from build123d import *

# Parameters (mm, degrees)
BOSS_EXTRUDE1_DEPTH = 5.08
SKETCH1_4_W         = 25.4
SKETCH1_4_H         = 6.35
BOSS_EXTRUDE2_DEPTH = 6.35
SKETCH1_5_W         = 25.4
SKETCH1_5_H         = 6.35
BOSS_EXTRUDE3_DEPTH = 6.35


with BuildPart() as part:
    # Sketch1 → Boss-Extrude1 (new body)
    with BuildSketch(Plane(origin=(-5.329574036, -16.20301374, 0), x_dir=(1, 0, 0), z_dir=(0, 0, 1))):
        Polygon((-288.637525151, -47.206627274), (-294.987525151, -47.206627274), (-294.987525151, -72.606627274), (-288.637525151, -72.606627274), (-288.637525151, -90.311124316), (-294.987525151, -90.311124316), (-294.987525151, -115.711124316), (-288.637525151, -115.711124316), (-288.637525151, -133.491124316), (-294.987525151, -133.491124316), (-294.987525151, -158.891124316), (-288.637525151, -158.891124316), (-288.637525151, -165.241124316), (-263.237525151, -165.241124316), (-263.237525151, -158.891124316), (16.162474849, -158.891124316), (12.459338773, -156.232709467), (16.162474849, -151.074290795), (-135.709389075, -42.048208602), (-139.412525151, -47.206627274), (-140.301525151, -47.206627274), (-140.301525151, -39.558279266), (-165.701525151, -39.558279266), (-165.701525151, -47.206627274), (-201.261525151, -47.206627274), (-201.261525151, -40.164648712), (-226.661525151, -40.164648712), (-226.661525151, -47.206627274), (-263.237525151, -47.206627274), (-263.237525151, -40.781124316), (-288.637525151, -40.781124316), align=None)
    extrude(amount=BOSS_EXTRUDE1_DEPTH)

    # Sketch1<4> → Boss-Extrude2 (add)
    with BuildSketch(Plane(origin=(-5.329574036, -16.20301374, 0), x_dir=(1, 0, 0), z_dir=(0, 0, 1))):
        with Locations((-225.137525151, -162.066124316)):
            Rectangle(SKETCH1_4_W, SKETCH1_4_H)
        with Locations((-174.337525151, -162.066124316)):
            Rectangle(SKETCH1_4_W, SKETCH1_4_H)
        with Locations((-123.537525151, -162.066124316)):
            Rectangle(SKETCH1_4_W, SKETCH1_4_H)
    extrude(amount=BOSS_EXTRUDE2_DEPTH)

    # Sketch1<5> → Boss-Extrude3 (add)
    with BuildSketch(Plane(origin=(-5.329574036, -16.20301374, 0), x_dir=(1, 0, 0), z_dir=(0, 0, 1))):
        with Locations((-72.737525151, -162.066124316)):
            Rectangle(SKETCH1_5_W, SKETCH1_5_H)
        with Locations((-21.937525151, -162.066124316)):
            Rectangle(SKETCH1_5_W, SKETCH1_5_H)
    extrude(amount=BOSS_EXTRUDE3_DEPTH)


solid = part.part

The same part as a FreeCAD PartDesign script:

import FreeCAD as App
import Part
import Sketcher
from FreeCAD import Vector
Q = App.Units.Quantity

doc = App.newDocument("Part")
body = doc.addObject("PartDesign::Body", "Body")

sketch1 = doc.addObject("Sketcher::SketchObject", "Sketch")
body.addObject(sketch1)
sketch1.AttachmentSupport = (doc.XY_Plane, [""])
sketch1.MapMode = "FlatFace"
sketch1.addGeometry(Part.LineSegment(Vector(-294, -63.4, 0), Vector(-300.3, -63.4, 0)), False)
sketch1.addGeometry(Part.LineSegment(Vector(-300.3, -63.4, 0), Vector(-300.3, -88.8, 0)), False)
sketch1.addGeometry(Part.LineSegment(Vector(-300.3, -88.8, 0), Vector(-294, -88.8, 0)), False)
sketch1.addGeometry(Part.LineSegment(Vector(-294, -88.8, 0), Vector(-294, -106.5, 0)), False)
sketch1.addGeometry(Part.LineSegment(Vector(-294, -106.5, 0), Vector(-300.3, -106.5, 0)), False)
sketch1.addGeometry(Part.LineSegment(Vector(-300.3, -106.5, 0), Vector(-300.3, -131.9, 0)), False)
sketch1.addGeometry(Part.LineSegment(Vector(-300.3, -131.9, 0), Vector(-294, -131.9, 0)), False)
sketch1.addGeometry(Part.LineSegment(Vector(-294, -131.9, 0), Vector(-294, -149.7, 0)), False)
sketch1.addGeometry(Part.LineSegment(Vector(-294, -149.7, 0), Vector(-300.3, -149.7, 0)), False)
sketch1.addGeometry(Part.LineSegment(Vector(-300.3, -149.7, 0), Vector(-300.3, -175.1, 0)), False)
sketch1.addGeometry(Part.LineSegment(Vector(-300.3, -175.1, 0), Vector(-294, -175.1, 0)), False)
sketch1.addGeometry(Part.LineSegment(Vector(-294, -175.1, 0), Vector(-294, -181.4, 0)), False)
sketch1.addGeometry(Part.LineSegment(Vector(-294, -181.4, 0), Vector(-268.6, -181.4, 0)), False)
sketch1.addGeometry(Part.LineSegment(Vector(-268.6, -181.4, 0), Vector(-268.6, -175.1, 0)), False)
sketch1.addGeometry(Part.LineSegment(Vector(-268.6, -175.1, 0), Vector(10.8, -175.1, 0)), False)
sketch1.addGeometry(Part.LineSegment(Vector(10.8, -175.1, 0), Vector(7.1, -172.4, 0)), False)
sketch1.addGeometry(Part.LineSegment(Vector(7.1, -172.4, 0), Vector(10.8, -167.3, 0)), False)
sketch1.addGeometry(Part.LineSegment(Vector(10.8, -167.3, 0), Vector(-141, -58.3, 0)), False)
sketch1.addGeometry(Part.LineSegment(Vector(-141, -58.3, 0), Vector(-144.7, -63.4, 0)), False)
sketch1.addGeometry(Part.LineSegment(Vector(-144.7, -63.4, 0), Vector(-145.6, -63.4, 0)), False)
sketch1.addGeometry(Part.LineSegment(Vector(-145.6, -63.4, 0), Vector(-145.6, -55.8, 0)), False)
sketch1.addGeometry(Part.LineSegment(Vector(-145.6, -55.8, 0), Vector(-171, -55.8, 0)), False)
sketch1.addGeometry(Part.LineSegment(Vector(-171, -55.8, 0), Vector(-171, -63.4, 0)), False)
sketch1.addGeometry(Part.LineSegment(Vector(-171, -63.4, 0), Vector(-206.6, -63.4, 0)), False)
sketch1.addGeometry(Part.LineSegment(Vector(-206.6, -63.4, 0), Vector(-206.6, -56.4, 0)), False)
sketch1.addGeometry(Part.LineSegment(Vector(-206.6, -56.4, 0), Vector(-232, -56.4, 0)), False)
sketch1.addGeometry(Part.LineSegment(Vector(-232, -56.4, 0), Vector(-232, -63.4, 0)), False)
sketch1.addGeometry(Part.LineSegment(Vector(-232, -63.4, 0), Vector(-268.6, -63.4, 0)), False)
sketch1.addGeometry(Part.LineSegment(Vector(-268.6, -63.4, 0), Vector(-268.6, -57, 0)), False)
sketch1.addGeometry(Part.LineSegment(Vector(-268.6, -57, 0), Vector(-294, -57, 0)), False)
sketch1.addGeometry(Part.LineSegment(Vector(-294, -57, 0), Vector(-294, -63.4, 0)), False)
sketch1.addConstraint(Sketcher.Constraint("Coincident", 0, 2, 1, 1))
sketch1.addConstraint(Sketcher.Constraint("Coincident", 1, 2, 2, 1))
sketch1.addConstraint(Sketcher.Constraint("Coincident", 2, 2, 3, 1))
sketch1.addConstraint(Sketcher.Constraint("Coincident", 3, 2, 4, 1))
sketch1.addConstraint(Sketcher.Constraint("Coincident", 4, 2, 5, 1))
sketch1.addConstraint(Sketcher.Constraint("Coincident", 5, 2, 6, 1))
sketch1.addConstraint(Sketcher.Constraint("Coincident", 6, 2, 7, 1))
sketch1.addConstraint(Sketcher.Constraint("Coincident", 7, 2, 8, 1))
sketch1.addConstraint(Sketcher.Constraint("Coincident", 8, 2, 9, 1))
sketch1.addConstraint(Sketcher.Constraint("Coincident", 9, 2, 10, 1))
sketch1.addConstraint(Sketcher.Constraint("Coincident", 10, 2, 11, 1))
sketch1.addConstraint(Sketcher.Constraint("Coincident", 11, 2, 12, 1))
sketch1.addConstraint(Sketcher.Constraint("Coincident", 12, 2, 13, 1))
sketch1.addConstraint(Sketcher.Constraint("Coincident", 13, 2, 14, 1))
sketch1.addConstraint(Sketcher.Constraint("Coincident", 14, 2, 15, 1))
sketch1.addConstraint(Sketcher.Constraint("Coincident", 15, 2, 16, 1))
sketch1.addConstraint(Sketcher.Constraint("Coincident", 16, 2, 17, 1))
sketch1.addConstraint(Sketcher.Constraint("Coincident", 17, 2, 18, 1))
sketch1.addConstraint(Sketcher.Constraint("Coincident", 18, 2, 19, 1))
sketch1.addConstraint(Sketcher.Constraint("Coincident", 19, 2, 20, 1))
sketch1.addConstraint(Sketcher.Constraint("Coincident", 20, 2, 21, 1))
sketch1.addConstraint(Sketcher.Constraint("Coincident", 21, 2, 22, 1))
sketch1.addConstraint(Sketcher.Constraint("Coincident", 22, 2, 23, 1))
sketch1.addConstraint(Sketcher.Constraint("Coincident", 23, 2, 24, 1))
sketch1.addConstraint(Sketcher.Constraint("Coincident", 24, 2, 25, 1))
sketch1.addConstraint(Sketcher.Constraint("Coincident", 25, 2, 26, 1))
sketch1.addConstraint(Sketcher.Constraint("Coincident", 26, 2, 27, 1))
sketch1.addConstraint(Sketcher.Constraint("Coincident", 27, 2, 28, 1))
sketch1.addConstraint(Sketcher.Constraint("Coincident", 28, 2, 29, 1))
sketch1.addConstraint(Sketcher.Constraint("Coincident", 29, 2, 30, 1))
sketch1.addConstraint(Sketcher.Constraint("Coincident", 30, 2, 0, 1))
sketch1.addConstraint(Sketcher.Constraint("Horizontal", 0))
sketch1.addConstraint(Sketcher.Constraint("Vertical", 1))
sketch1.addConstraint(Sketcher.Constraint("Horizontal", 2))
sketch1.addConstraint(Sketcher.Constraint("Vertical", 3))
sketch1.addConstraint(Sketcher.Constraint("Horizontal", 4))
sketch1.addConstraint(Sketcher.Constraint("Vertical", 5))
sketch1.addConstraint(Sketcher.Constraint("Horizontal", 6))
sketch1.addConstraint(Sketcher.Constraint("Vertical", 7))
sketch1.addConstraint(Sketcher.Constraint("Horizontal", 8))
sketch1.addConstraint(Sketcher.Constraint("Vertical", 9))
sketch1.addConstraint(Sketcher.Constraint("Horizontal", 10))
sketch1.addConstraint(Sketcher.Constraint("Vertical", 11))
sketch1.addConstraint(Sketcher.Constraint("Horizontal", 12))
sketch1.addConstraint(Sketcher.Constraint("Vertical", 13))
sketch1.addConstraint(Sketcher.Constraint("Horizontal", 14))
sketch1.addConstraint(Sketcher.Constraint("Horizontal", 19))
sketch1.addConstraint(Sketcher.Constraint("Vertical", 20))
sketch1.addConstraint(Sketcher.Constraint("Horizontal", 21))
sketch1.addConstraint(Sketcher.Constraint("Vertical", 22))
sketch1.addConstraint(Sketcher.Constraint("Horizontal", 23))
sketch1.addConstraint(Sketcher.Constraint("Vertical", 24))
sketch1.addConstraint(Sketcher.Constraint("Horizontal", 25))
sketch1.addConstraint(Sketcher.Constraint("Vertical", 26))
sketch1.addConstraint(Sketcher.Constraint("Horizontal", 27))
sketch1.addConstraint(Sketcher.Constraint("Vertical", 28))
sketch1.addConstraint(Sketcher.Constraint("Horizontal", 29))
sketch1.addConstraint(Sketcher.Constraint("Vertical", 30))
sketch1.addConstraint(Sketcher.Constraint("Perpendicular", 15, 16))
sketch1.addConstraint(Sketcher.Constraint("Perpendicular", 16, 17))
sketch1.addConstraint(Sketcher.Constraint("Perpendicular", 17, 18))
sketch1.addConstraint(Sketcher.Constraint("Horizontal", 10, 2, 13, 2))
sketch1.addConstraint(Sketcher.Constraint("Horizontal", 0, 2, 18, 2))
sketch1.addConstraint(Sketcher.Constraint("Horizontal", 19, 2, 22, 2))
sketch1.addConstraint(Sketcher.Constraint("Horizontal", 23, 2, 26, 2))
sketch1.addConstraint(Sketcher.Constraint("Vertical", 1, 2, 4, 2))
sketch1.addConstraint(Sketcher.Constraint("Vertical", 3, 2, 6, 2))
sketch1.addConstraint(Sketcher.Constraint("Vertical", 5, 2, 8, 2))
sketch1.addConstraint(Sketcher.Constraint("Vertical", 7, 2, 10, 2))
sketch1.addConstraint(Sketcher.Constraint("Vertical", 14, 2, 16, 2))
sketch1.addConstraint(Sketcher.Constraint("Vertical", 13, 2, 27, 2))
sketch1.addConstraint(Sketcher.Constraint("Vertical", 11, 2, 29, 2))
sketch1.addConstraint(Sketcher.Constraint("Equal", 12, 21))
sketch1.addConstraint(Sketcher.Constraint("Equal", 21, 25))
sketch1.addConstraint(Sketcher.Constraint("Equal", 29, 1))
sketch1.addConstraint(Sketcher.Constraint("Equal", 1, 5))
sketch1.addConstraint(Sketcher.Constraint("Equal", 5, 9))
sketch1.addConstraint(Sketcher.Constraint("Equal", 10, 11))
sketch1.addConstraint(Sketcher.Constraint("Equal", 16, 18))
sketch1.addConstraint(Sketcher.Constraint("DistanceX", 12, 1, 12, 2, Q("1 in")))
sketch1.addConstraint(Sketcher.Constraint("DistanceX", 14, 1, 14, 2, Q("11 in")))
sketch1.addConstraint(Sketcher.Constraint("DistanceX", 23, 2, 23, 1, Q("1.4 in")))
sketch1.addConstraint(Sketcher.Constraint("DistanceY", 7, 2, 7, 1, Q("0.7 in")))
sketch1.addConstraint(Sketcher.Constraint("DistanceX", 0, 2, 0, 1, Q("0.25 in")))
sketch1.addConstraint(Sketcher.Constraint("DistanceX", 27, 2, 27, 1, Q("1.44 in")))
sketch1.addConstraint(Sketcher.Constraint("Distance", 16, Q("0.25 in")))
sketch1.addConstraint(Sketcher.Constraint("DistanceX", 19, 2, 19, 1, Q("0.035 in")))
sketch1.addConstraint(Sketcher.Constraint("DistanceY", 20, 1, 20, 2, 7.648348))
sketch1.addConstraint(Sketcher.Constraint("DistanceY", 24, 1, 24, 2, 7.041979))
sketch1.addConstraint(Sketcher.Constraint("DistanceX", 0, 2, -1, 1, 300.317099))
sketch1.addConstraint(Sketcher.Constraint("Distance", 15, 4.558551))
sketch1.addConstraint(Sketcher.Constraint("DistanceY", 28, 1, 28, 2, 6.425503))
sketch1.addConstraint(Sketcher.Constraint("DistanceY", 0, 2, -1, 1, 63.409641))
pad1 = doc.addObject("PartDesign::Pad", "Pad")
body.addObject(pad1)
pad1.Profile = sketch1
pad1.Length = Q("0.2 in")

sketch2 = doc.addObject("Sketcher::SketchObject", "Sketch001")
body.addObject(sketch2)
sketch2.AttachmentSupport = (doc.XY_Plane, [""])
sketch2.MapMode = "FlatFace"
sketch2.addGeometry(Part.LineSegment(Vector(-243, -175, 0), Vector(-243, -181, 0)), False)
sketch2.addGeometry(Part.LineSegment(Vector(-243, -181, 0), Vector(-218, -181, 0)), False)
sketch2.addGeometry(Part.LineSegment(Vector(-218, -181, 0), Vector(-218, -175, 0)), False)
sketch2.addGeometry(Part.LineSegment(Vector(-218, -175, 0), Vector(-243, -175, 0)), False)
sketch2.addGeometry(Part.LineSegment(Vector(-192, -175, 0), Vector(-192, -181, 0)), False)
sketch2.addGeometry(Part.LineSegment(Vector(-192, -181, 0), Vector(-167, -181, 0)), False)
sketch2.addGeometry(Part.LineSegment(Vector(-167, -181, 0), Vector(-167, -175, 0)), False)
sketch2.addGeometry(Part.LineSegment(Vector(-167, -175, 0), Vector(-192, -175, 0)), False)
sketch2.addGeometry(Part.LineSegment(Vector(-142, -175, 0), Vector(-142, -181, 0)), False)
sketch2.addGeometry(Part.LineSegment(Vector(-142, -181, 0), Vector(-116, -181, 0)), False)
sketch2.addGeometry(Part.LineSegment(Vector(-116, -181, 0), Vector(-116, -175, 0)), False)
sketch2.addGeometry(Part.LineSegment(Vector(-116, -175, 0), Vector(-142, -175, 0)), False)
sketch2.addConstraint(Sketcher.Constraint("Coincident", 0, 2, 1, 1))
sketch2.addConstraint(Sketcher.Constraint("Coincident", 1, 2, 2, 1))
sketch2.addConstraint(Sketcher.Constraint("Coincident", 2, 2, 3, 1))
sketch2.addConstraint(Sketcher.Constraint("Coincident", 3, 2, 0, 1))
sketch2.addConstraint(Sketcher.Constraint("Coincident", 4, 2, 5, 1))
sketch2.addConstraint(Sketcher.Constraint("Coincident", 5, 2, 6, 1))
sketch2.addConstraint(Sketcher.Constraint("Coincident", 6, 2, 7, 1))
sketch2.addConstraint(Sketcher.Constraint("Coincident", 7, 2, 4, 1))
sketch2.addConstraint(Sketcher.Constraint("Coincident", 8, 2, 9, 1))
sketch2.addConstraint(Sketcher.Constraint("Coincident", 9, 2, 10, 1))
sketch2.addConstraint(Sketcher.Constraint("Coincident", 10, 2, 11, 1))
sketch2.addConstraint(Sketcher.Constraint("Coincident", 11, 2, 8, 1))
sketch2.addConstraint(Sketcher.Constraint("Vertical", 0))
sketch2.addConstraint(Sketcher.Constraint("Horizontal", 1))
sketch2.addConstraint(Sketcher.Constraint("Vertical", 2))
sketch2.addConstraint(Sketcher.Constraint("Horizontal", 3))
sketch2.addConstraint(Sketcher.Constraint("Vertical", 4))
sketch2.addConstraint(Sketcher.Constraint("Horizontal", 5))
sketch2.addConstraint(Sketcher.Constraint("Vertical", 6))
sketch2.addConstraint(Sketcher.Constraint("Horizontal", 7))
sketch2.addConstraint(Sketcher.Constraint("Vertical", 8))
sketch2.addConstraint(Sketcher.Constraint("Horizontal", 9))
sketch2.addConstraint(Sketcher.Constraint("Vertical", 10))
sketch2.addConstraint(Sketcher.Constraint("Horizontal", 11))
sketch2.addConstraint(Sketcher.Constraint("Horizontal", 1, 2, 4, 2))
sketch2.addConstraint(Sketcher.Constraint("Horizontal", 3, 2, 6, 2))
sketch2.addConstraint(Sketcher.Constraint("Horizontal", 5, 2, 8, 2))
sketch2.addConstraint(Sketcher.Constraint("Horizontal", 7, 2, 10, 2))
sketch2.addConstraint(Sketcher.Constraint("Equal", 3, 5))
sketch2.addConstraint(Sketcher.Constraint("Equal", 7, 9))
sketch2.addConstraint(Sketcher.Constraint("DistanceX", 1, 1, 1, 2, Q("1 in")))
sketch2.addConstraint(Sketcher.Constraint("DistanceX", 1, 2, 4, 2, Q("1 in")))
sketch2.addConstraint(Sketcher.Constraint("DistanceX", 5, 2, 8, 2, Q("1 in")))
sketch2.addConstraint(Sketcher.Constraint("DistanceY", 0, 2, 0, 1, Q("0.25 in")))
sketch2.addConstraint(Sketcher.Constraint("DistanceX", 0, 2, -1, 1, 243.167099))
sketch2.addConstraint(Sketcher.Constraint("DistanceY", 0, 2, -1, 1, 181.444138))
pad2 = doc.addObject("PartDesign::Pad", "Pad001")
body.addObject(pad2)
pad2.Profile = sketch2
pad2.Length = Q("0.25 in")

sketch3 = doc.addObject("Sketcher::SketchObject", "Sketch002")
body.addObject(sketch3)
sketch3.AttachmentSupport = (doc.XY_Plane, [""])
sketch3.MapMode = "FlatFace"
sketch3.addGeometry(Part.LineSegment(Vector(-91, -175, 0), Vector(-91, -181, 0)), False)
sketch3.addGeometry(Part.LineSegment(Vector(-91, -181, 0), Vector(-65, -181, 0)), False)
sketch3.addGeometry(Part.LineSegment(Vector(-65, -181, 0), Vector(-65, -175, 0)), False)
sketch3.addGeometry(Part.LineSegment(Vector(-65, -175, 0), Vector(-91, -175, 0)), False)
sketch3.addGeometry(Part.LineSegment(Vector(-40, -175, 0), Vector(-40, -181, 0)), False)
sketch3.addGeometry(Part.LineSegment(Vector(-40, -181, 0), Vector(-15, -181, 0)), False)
sketch3.addGeometry(Part.LineSegment(Vector(-15, -181, 0), Vector(-15, -175, 0)), False)
sketch3.addGeometry(Part.LineSegment(Vector(-15, -175, 0), Vector(-40, -175, 0)), False)
sketch3.addConstraint(Sketcher.Constraint("Coincident", 0, 2, 1, 1))
sketch3.addConstraint(Sketcher.Constraint("Coincident", 1, 2, 2, 1))
sketch3.addConstraint(Sketcher.Constraint("Coincident", 2, 2, 3, 1))
sketch3.addConstraint(Sketcher.Constraint("Coincident", 3, 2, 0, 1))
sketch3.addConstraint(Sketcher.Constraint("Coincident", 4, 2, 5, 1))
sketch3.addConstraint(Sketcher.Constraint("Coincident", 5, 2, 6, 1))
sketch3.addConstraint(Sketcher.Constraint("Coincident", 6, 2, 7, 1))
sketch3.addConstraint(Sketcher.Constraint("Coincident", 7, 2, 4, 1))
sketch3.addConstraint(Sketcher.Constraint("Vertical", 0))
sketch3.addConstraint(Sketcher.Constraint("Horizontal", 1))
sketch3.addConstraint(Sketcher.Constraint("Vertical", 2))
sketch3.addConstraint(Sketcher.Constraint("Horizontal", 3))
sketch3.addConstraint(Sketcher.Constraint("Vertical", 4))
sketch3.addConstraint(Sketcher.Constraint("Horizontal", 5))
sketch3.addConstraint(Sketcher.Constraint("Vertical", 6))
sketch3.addConstraint(Sketcher.Constraint("Horizontal", 7))
sketch3.addConstraint(Sketcher.Constraint("Horizontal", 1, 2, 4, 2))
sketch3.addConstraint(Sketcher.Constraint("Horizontal", 3, 2, 6, 2))
sketch3.addConstraint(Sketcher.Constraint("Equal", 3, 5))
sketch3.addConstraint(Sketcher.Constraint("DistanceX", 1, 1, 1, 2, Q("1 in")))
sketch3.addConstraint(Sketcher.Constraint("DistanceX", 1, 2, 4, 2, Q("1 in")))
sketch3.addConstraint(Sketcher.Constraint("DistanceY", 0, 2, 0, 1, Q("0.25 in")))
sketch3.addConstraint(Sketcher.Constraint("DistanceX", 0, 2, -1, 1, 90.767099))
sketch3.addConstraint(Sketcher.Constraint("DistanceY", 0, 2, -1, 1, 181.444138))
pad3 = doc.addObject("PartDesign::Pad", "Pad002")
body.addObject(pad3)
pad3.Profile = sketch3
pad3.Length = Q("0.25 in")

doc.recompute()
